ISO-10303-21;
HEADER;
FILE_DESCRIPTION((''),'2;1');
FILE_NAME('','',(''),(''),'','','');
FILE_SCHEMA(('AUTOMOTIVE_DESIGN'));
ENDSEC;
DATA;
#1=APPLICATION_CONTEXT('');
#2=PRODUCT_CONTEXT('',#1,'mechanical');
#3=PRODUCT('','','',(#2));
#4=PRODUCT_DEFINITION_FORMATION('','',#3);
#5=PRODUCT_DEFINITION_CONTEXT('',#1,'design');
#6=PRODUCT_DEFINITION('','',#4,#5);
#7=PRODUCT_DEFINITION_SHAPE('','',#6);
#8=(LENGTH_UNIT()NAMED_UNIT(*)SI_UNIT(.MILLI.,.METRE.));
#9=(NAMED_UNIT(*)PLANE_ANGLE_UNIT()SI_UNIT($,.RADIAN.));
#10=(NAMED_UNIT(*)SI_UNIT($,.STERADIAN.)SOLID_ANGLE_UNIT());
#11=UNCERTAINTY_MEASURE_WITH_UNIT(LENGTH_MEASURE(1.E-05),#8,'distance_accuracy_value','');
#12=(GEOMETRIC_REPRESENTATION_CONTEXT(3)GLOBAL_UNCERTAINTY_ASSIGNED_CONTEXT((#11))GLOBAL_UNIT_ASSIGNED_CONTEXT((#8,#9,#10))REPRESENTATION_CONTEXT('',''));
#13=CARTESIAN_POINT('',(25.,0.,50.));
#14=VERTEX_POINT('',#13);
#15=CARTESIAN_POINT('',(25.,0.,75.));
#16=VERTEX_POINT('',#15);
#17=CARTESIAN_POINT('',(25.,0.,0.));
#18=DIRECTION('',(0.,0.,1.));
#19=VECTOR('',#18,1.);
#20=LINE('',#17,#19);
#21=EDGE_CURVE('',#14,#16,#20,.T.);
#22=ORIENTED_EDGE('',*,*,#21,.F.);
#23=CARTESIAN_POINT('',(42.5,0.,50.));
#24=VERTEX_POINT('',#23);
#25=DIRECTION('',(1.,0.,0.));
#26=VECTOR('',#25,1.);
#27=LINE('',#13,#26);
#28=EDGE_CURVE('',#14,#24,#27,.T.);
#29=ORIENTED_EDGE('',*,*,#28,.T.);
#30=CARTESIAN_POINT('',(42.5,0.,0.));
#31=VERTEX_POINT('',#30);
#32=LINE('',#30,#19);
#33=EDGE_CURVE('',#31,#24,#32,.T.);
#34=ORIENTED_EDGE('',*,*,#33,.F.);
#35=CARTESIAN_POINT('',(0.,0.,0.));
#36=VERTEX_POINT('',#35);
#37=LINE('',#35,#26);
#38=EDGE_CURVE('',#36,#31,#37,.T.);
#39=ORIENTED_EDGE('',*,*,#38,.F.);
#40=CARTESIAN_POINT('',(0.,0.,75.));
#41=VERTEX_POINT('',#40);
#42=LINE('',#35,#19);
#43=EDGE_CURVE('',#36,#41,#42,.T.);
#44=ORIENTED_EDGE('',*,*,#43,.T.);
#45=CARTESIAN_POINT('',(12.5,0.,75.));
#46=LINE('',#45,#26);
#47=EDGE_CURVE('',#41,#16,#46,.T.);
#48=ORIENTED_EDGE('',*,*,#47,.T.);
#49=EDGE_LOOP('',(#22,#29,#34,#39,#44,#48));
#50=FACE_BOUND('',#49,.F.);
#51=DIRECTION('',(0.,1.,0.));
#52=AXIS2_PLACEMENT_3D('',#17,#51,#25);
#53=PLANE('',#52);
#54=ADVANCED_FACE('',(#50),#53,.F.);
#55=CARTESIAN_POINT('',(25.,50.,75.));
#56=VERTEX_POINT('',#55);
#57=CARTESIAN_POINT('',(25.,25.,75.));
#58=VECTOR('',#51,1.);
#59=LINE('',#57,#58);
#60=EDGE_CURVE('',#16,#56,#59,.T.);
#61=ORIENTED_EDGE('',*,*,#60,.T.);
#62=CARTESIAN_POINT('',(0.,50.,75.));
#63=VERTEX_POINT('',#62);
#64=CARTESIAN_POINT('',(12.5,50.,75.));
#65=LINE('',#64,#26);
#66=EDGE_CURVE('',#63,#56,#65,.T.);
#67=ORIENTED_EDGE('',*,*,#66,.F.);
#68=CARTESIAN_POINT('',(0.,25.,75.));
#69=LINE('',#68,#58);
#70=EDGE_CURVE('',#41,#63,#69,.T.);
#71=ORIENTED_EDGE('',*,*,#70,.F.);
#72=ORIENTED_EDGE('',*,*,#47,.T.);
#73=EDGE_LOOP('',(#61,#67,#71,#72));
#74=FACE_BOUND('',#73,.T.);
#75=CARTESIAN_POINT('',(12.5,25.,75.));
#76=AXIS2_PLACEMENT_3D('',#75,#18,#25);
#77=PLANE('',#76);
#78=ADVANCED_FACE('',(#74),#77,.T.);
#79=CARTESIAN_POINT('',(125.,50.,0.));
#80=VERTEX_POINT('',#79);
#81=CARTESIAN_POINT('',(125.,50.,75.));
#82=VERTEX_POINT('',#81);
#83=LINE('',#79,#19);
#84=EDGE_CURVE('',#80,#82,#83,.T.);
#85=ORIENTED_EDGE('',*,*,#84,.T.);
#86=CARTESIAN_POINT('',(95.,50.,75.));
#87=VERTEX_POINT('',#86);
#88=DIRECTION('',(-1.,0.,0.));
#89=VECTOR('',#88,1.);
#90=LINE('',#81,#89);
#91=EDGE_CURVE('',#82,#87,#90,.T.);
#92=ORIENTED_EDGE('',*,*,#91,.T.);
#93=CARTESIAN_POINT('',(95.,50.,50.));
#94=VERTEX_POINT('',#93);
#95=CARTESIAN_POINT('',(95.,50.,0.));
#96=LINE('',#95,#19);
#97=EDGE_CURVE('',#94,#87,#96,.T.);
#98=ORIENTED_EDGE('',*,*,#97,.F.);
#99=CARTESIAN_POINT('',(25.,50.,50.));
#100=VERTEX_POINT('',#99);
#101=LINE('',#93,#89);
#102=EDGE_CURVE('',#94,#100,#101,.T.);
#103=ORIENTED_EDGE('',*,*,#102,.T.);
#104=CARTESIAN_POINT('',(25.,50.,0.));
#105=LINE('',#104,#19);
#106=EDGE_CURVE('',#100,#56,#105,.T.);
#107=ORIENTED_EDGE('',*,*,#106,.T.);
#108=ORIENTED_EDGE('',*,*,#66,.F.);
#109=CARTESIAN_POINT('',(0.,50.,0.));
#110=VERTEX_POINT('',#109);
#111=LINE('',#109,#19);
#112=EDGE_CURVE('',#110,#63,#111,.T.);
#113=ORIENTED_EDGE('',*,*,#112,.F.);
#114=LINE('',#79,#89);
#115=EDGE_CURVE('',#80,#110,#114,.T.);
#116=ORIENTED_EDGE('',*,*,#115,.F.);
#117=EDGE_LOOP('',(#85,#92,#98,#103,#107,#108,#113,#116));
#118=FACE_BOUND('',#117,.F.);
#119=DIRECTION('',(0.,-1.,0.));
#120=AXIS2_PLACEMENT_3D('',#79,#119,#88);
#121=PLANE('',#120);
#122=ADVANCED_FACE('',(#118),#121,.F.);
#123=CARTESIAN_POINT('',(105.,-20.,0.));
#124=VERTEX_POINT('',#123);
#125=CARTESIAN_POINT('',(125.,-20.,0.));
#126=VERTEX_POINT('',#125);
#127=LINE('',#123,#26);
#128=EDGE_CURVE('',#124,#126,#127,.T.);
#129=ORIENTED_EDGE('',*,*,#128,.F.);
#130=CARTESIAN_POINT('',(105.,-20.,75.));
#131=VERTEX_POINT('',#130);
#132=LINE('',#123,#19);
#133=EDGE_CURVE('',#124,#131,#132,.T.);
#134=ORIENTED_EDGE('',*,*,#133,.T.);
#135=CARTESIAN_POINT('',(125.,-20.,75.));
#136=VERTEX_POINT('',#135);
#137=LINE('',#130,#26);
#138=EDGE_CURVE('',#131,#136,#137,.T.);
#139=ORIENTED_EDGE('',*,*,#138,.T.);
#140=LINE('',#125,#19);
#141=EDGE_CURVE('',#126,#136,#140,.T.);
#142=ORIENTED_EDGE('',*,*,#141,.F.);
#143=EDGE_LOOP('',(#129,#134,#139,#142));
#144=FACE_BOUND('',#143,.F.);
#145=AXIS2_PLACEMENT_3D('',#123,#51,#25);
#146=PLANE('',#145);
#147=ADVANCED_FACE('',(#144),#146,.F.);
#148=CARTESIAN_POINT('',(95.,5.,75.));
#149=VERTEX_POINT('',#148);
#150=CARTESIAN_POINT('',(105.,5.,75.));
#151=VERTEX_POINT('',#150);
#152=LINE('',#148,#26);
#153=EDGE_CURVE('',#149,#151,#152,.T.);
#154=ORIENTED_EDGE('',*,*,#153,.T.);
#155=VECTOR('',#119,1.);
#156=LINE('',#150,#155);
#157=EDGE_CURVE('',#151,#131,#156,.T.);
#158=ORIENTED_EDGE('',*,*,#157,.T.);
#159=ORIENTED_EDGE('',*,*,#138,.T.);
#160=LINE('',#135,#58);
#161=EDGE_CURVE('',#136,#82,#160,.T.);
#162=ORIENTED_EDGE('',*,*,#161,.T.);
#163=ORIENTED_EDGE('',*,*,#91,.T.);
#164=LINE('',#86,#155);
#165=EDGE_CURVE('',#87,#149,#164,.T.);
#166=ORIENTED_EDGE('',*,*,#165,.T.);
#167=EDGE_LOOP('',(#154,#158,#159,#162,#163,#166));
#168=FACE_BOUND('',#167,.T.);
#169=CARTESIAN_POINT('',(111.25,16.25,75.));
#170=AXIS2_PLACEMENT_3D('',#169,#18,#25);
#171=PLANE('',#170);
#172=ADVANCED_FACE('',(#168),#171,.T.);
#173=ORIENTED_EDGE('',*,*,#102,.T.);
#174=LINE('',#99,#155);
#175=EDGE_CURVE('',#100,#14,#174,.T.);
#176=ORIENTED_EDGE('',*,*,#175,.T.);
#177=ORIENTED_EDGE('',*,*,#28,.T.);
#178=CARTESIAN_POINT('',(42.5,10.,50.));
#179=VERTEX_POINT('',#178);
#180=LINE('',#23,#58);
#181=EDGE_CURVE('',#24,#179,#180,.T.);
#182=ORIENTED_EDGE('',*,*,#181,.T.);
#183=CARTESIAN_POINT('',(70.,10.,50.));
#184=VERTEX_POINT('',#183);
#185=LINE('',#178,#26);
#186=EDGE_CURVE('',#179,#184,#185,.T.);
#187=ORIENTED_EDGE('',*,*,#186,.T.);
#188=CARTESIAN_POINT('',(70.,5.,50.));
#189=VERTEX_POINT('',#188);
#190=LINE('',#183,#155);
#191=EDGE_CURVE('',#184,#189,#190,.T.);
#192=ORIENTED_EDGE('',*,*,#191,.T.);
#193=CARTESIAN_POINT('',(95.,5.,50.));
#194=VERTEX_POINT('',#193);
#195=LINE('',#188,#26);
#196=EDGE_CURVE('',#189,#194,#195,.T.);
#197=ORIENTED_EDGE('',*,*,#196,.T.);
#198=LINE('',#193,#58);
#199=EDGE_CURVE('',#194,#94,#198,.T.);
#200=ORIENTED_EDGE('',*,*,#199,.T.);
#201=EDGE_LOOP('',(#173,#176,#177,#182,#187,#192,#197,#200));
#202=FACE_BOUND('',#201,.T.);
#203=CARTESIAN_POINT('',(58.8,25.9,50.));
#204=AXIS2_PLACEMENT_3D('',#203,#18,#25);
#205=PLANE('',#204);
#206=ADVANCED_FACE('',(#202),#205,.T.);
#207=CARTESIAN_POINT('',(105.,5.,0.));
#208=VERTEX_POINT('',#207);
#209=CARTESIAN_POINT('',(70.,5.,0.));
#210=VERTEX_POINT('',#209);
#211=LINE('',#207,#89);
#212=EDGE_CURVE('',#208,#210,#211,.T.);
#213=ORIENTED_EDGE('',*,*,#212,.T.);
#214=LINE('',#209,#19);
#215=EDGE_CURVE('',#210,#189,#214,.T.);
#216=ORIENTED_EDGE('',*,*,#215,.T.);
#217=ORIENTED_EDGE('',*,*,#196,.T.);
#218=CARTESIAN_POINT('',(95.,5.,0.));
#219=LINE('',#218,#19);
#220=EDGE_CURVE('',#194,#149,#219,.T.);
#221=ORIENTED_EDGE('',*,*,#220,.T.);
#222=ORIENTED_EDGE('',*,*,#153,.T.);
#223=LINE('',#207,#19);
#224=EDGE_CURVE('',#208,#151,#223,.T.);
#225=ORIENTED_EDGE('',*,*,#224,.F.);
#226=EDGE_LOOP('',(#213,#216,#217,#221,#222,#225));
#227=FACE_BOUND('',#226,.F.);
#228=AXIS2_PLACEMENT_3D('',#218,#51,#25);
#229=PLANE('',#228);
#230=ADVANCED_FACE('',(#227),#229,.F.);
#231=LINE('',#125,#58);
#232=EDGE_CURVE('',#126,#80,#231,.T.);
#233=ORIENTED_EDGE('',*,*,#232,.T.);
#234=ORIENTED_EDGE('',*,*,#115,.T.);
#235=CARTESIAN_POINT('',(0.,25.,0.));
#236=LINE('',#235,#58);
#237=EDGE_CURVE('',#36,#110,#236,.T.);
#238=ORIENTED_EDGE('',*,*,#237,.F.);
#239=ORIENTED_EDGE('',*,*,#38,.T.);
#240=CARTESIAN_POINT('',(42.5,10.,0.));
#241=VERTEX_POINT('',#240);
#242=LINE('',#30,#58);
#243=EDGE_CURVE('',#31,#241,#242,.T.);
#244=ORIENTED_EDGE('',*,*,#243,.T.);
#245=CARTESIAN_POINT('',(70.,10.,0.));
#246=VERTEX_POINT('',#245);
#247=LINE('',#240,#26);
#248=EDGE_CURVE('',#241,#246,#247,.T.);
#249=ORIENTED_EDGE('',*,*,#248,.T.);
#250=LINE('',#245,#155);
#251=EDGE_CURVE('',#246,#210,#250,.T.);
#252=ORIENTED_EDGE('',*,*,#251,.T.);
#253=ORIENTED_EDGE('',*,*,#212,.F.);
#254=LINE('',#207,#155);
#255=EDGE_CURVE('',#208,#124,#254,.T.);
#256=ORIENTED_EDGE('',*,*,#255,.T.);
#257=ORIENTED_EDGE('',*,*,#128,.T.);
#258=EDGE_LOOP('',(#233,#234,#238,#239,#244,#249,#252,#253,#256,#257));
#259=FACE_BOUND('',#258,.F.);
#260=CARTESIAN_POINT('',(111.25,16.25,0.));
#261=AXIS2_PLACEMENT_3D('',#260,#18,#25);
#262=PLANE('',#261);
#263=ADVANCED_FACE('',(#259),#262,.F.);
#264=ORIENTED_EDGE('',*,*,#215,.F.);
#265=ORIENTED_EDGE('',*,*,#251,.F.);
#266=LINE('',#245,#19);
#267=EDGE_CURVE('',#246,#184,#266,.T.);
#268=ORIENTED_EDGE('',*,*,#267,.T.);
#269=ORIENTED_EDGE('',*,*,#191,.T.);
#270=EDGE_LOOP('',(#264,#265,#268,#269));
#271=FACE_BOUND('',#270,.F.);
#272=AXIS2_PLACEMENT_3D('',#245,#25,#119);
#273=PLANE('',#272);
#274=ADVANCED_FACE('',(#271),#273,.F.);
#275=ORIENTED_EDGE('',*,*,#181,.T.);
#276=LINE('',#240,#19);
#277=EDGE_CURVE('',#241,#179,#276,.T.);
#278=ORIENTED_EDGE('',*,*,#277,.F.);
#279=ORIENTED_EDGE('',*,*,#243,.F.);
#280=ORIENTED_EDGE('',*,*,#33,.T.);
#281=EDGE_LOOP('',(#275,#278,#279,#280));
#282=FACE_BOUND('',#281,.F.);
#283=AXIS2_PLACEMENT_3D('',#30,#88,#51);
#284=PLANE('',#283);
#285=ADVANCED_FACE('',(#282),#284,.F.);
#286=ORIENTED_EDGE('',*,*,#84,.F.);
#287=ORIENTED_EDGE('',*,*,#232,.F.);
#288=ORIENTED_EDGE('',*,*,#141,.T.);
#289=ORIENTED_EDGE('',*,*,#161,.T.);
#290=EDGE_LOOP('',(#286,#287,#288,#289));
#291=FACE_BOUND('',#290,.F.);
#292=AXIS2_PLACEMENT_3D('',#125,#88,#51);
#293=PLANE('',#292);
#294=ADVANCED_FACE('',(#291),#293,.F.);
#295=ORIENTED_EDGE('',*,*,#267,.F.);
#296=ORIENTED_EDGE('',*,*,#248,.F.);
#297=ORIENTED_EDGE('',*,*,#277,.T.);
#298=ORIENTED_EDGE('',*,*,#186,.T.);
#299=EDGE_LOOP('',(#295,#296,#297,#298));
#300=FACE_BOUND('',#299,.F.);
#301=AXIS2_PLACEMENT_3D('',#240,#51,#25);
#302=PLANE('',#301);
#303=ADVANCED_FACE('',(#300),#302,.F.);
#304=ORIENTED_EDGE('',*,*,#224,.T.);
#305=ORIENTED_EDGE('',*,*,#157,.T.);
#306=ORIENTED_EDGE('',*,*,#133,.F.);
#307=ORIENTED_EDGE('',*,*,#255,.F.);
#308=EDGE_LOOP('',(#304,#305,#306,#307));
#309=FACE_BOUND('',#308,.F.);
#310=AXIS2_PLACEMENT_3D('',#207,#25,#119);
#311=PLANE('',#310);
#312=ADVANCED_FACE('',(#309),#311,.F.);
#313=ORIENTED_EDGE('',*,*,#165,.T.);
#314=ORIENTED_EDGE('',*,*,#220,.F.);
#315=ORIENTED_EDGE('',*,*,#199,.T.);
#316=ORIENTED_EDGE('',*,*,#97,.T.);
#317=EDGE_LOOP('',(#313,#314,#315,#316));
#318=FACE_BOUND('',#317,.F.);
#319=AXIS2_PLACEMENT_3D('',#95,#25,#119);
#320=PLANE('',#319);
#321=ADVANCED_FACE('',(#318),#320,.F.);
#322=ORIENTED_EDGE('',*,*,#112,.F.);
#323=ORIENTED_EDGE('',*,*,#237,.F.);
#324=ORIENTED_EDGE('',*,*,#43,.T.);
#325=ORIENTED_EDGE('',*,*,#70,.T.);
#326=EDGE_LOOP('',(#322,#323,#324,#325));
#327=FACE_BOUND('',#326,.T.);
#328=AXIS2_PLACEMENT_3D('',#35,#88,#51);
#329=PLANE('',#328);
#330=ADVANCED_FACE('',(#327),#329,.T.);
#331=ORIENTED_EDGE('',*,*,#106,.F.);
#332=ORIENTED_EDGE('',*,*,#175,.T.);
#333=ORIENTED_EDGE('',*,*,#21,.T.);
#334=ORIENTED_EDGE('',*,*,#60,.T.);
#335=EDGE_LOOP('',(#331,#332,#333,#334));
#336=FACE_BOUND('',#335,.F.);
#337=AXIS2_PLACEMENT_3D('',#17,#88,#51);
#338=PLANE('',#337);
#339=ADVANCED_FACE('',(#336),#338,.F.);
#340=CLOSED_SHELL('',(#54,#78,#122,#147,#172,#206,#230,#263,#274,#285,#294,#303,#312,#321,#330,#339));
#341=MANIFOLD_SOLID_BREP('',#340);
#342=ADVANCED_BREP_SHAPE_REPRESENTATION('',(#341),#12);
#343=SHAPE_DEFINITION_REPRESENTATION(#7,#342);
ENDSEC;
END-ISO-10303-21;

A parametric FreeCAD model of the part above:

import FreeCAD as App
import Part
import Sketcher
from FreeCAD import Vector


def add_polygon(sketch, points):
    """Adds a closed chain of lines whose ends are joined by coincident constraints."""
    first, n = sketch.GeometryCount, len(points)
    for a, b in zip(points, points[1:] + points[:1]):
        sketch.addGeometry(Part.LineSegment(App.Vector(*a, 0), App.Vector(*b, 0)), False)
    for i in range(n):
        sketch.addConstraint(Sketcher.Constraint("Coincident", first + i, 2, first + (i + 1) % n, 1))

doc = App.newDocument("Part")
body = doc.addObject("PartDesign::Body", "Body")

sketch1 = body.newObject("Sketcher::SketchObject", "Sketch")
sketch1.AttachmentSupport = (doc.getObject("XY_Plane"), [""])
sketch1.MapMode = "FlatFace"
add_polygon(sketch1, [(0, 50), (0, 0), (25, 0), (25, 50)])
sketch1.addConstraint(Sketcher.Constraint("Vertical", 0))
sketch1.addConstraint(Sketcher.Constraint("Horizontal", 1))
sketch1.addConstraint(Sketcher.Constraint("Vertical", 2))
sketch1.addConstraint(Sketcher.Constraint("Horizontal", 3))
sketch1.addConstraint(Sketcher.Constraint("Coincident", 0, 2, -1, 1))
sketch1.addConstraint(Sketcher.Constraint("DistanceX", 1, 1, 1, 2, 25.0))
sketch1.addConstraint(Sketcher.Constraint("DistanceY", 0, 2, 0, 1, 50.0))
pad1 = body.newObject("PartDesign::Pad", "Pad")
pad1.Profile = sketch1
pad1.Length = 75

sketch2 = body.newObject("Sketcher::SketchObject", "Sketch001")
sketch2.AttachmentSupport = (doc.getObject("XY_Plane"), [""])
sketch2.MapMode = "FlatFace"
add_polygon(sketch2, [(25, 50), (25, 0), (42, 0), (42, 10), (70, 10), (70, 5), (95, 5), (95, 50)])
sketch2.addConstraint(Sketcher.Constraint("Vertical", 0))
sketch2.addConstraint(Sketcher.Constraint("Horizontal", 1))
sketch2.addConstraint(Sketcher.Constraint("Vertical", 2))
sketch2.addConstraint(Sketcher.Constraint("Horizontal", 3))
sketch2.addConstraint(Sketcher.Constraint("Vertical", 4))
sketch2.addConstraint(Sketcher.Constraint("Horizontal", 5))
sketch2.addConstraint(Sketcher.Constraint("Vertical", 6))
sketch2.addConstraint(Sketcher.Constraint("Horizontal", 7))
sketch2.addConstraint(Sketcher.Constraint("PointOnObject", 0, 2, -1))
sketch2.addConstraint(Sketcher.Constraint("DistanceX", 5, 1, 5, 2, 25.0))
sketch2.addConstraint(Sketcher.Constraint("DistanceX", 7, 2, 7, 1, 70.0))
sketch2.addConstraint(Sketcher.Constraint("DistanceY", 0, 2, 0, 1, 50.0))
sketch2.addConstraint(Sketcher.Constraint("DistanceY", 2, 1, 2, 2, 10.0))
sketch2.addConstraint(Sketcher.Constraint("DistanceY", 4, 2, 4, 1, 5.0))
sketch2.addConstraint(Sketcher.Constraint("DistanceX", 1, 1, 1, 2, 17.5))
sketch2.addConstraint(Sketcher.Constraint("DistanceX", -1, 1, 0, 2, 25.0))
pad2 = body.newObject("PartDesign::Pad", "Pad001")
pad2.Profile = sketch2
pad2.Length = 50

sketch3 = body.newObject("Sketcher::SketchObject", "Sketch002")
sketch3.AttachmentSupport = (doc.getObject("XY_Plane"), [""])
sketch3.MapMode = "FlatFace"
add_polygon(sketch3, [(125, 50), (95, 50), (95, 5), (105, 5), (105, -20), (125, -20)])
sketch3.addConstraint(Sketcher.Constraint("Horizontal", 0))
sketch3.addConstraint(Sketcher.Constraint("Vertical", 1))
sketch3.addConstraint(Sketcher.Constraint("Horizontal", 2))
sketch3.addConstraint(Sketcher.Constraint("Vertical", 3))
sketch3.addConstraint(Sketcher.Constraint("Horizontal", 4))
sketch3.addConstraint(Sketcher.Constraint("Vertical", 5))
sketch3.addConstraint(Sketcher.Constraint("DistanceX", 0, 2, 0, 1, 30.0))
sketch3.addConstraint(Sketcher.Constraint("DistanceX", 2, 1, 2, 2, 10.0))
sketch3.addConstraint(Sketcher.Constraint("DistanceY", 1, 2, 1, 1, 45.0))
sketch3.addConstraint(Sketcher.Constraint("DistanceY", 3, 2, 3, 1, 25.0))
sketch3.addConstraint(Sketcher.Constraint("DistanceX", -1, 1, 0, 2, 95.0))
sketch3.addConstraint(Sketcher.Constraint("DistanceY", -1, 1, 0, 2, 50.0))
pad3 = body.newObject("PartDesign::Pad", "Pad002")
pad3.Profile = sketch3
pad3.Length = 75

doc.recompute()
